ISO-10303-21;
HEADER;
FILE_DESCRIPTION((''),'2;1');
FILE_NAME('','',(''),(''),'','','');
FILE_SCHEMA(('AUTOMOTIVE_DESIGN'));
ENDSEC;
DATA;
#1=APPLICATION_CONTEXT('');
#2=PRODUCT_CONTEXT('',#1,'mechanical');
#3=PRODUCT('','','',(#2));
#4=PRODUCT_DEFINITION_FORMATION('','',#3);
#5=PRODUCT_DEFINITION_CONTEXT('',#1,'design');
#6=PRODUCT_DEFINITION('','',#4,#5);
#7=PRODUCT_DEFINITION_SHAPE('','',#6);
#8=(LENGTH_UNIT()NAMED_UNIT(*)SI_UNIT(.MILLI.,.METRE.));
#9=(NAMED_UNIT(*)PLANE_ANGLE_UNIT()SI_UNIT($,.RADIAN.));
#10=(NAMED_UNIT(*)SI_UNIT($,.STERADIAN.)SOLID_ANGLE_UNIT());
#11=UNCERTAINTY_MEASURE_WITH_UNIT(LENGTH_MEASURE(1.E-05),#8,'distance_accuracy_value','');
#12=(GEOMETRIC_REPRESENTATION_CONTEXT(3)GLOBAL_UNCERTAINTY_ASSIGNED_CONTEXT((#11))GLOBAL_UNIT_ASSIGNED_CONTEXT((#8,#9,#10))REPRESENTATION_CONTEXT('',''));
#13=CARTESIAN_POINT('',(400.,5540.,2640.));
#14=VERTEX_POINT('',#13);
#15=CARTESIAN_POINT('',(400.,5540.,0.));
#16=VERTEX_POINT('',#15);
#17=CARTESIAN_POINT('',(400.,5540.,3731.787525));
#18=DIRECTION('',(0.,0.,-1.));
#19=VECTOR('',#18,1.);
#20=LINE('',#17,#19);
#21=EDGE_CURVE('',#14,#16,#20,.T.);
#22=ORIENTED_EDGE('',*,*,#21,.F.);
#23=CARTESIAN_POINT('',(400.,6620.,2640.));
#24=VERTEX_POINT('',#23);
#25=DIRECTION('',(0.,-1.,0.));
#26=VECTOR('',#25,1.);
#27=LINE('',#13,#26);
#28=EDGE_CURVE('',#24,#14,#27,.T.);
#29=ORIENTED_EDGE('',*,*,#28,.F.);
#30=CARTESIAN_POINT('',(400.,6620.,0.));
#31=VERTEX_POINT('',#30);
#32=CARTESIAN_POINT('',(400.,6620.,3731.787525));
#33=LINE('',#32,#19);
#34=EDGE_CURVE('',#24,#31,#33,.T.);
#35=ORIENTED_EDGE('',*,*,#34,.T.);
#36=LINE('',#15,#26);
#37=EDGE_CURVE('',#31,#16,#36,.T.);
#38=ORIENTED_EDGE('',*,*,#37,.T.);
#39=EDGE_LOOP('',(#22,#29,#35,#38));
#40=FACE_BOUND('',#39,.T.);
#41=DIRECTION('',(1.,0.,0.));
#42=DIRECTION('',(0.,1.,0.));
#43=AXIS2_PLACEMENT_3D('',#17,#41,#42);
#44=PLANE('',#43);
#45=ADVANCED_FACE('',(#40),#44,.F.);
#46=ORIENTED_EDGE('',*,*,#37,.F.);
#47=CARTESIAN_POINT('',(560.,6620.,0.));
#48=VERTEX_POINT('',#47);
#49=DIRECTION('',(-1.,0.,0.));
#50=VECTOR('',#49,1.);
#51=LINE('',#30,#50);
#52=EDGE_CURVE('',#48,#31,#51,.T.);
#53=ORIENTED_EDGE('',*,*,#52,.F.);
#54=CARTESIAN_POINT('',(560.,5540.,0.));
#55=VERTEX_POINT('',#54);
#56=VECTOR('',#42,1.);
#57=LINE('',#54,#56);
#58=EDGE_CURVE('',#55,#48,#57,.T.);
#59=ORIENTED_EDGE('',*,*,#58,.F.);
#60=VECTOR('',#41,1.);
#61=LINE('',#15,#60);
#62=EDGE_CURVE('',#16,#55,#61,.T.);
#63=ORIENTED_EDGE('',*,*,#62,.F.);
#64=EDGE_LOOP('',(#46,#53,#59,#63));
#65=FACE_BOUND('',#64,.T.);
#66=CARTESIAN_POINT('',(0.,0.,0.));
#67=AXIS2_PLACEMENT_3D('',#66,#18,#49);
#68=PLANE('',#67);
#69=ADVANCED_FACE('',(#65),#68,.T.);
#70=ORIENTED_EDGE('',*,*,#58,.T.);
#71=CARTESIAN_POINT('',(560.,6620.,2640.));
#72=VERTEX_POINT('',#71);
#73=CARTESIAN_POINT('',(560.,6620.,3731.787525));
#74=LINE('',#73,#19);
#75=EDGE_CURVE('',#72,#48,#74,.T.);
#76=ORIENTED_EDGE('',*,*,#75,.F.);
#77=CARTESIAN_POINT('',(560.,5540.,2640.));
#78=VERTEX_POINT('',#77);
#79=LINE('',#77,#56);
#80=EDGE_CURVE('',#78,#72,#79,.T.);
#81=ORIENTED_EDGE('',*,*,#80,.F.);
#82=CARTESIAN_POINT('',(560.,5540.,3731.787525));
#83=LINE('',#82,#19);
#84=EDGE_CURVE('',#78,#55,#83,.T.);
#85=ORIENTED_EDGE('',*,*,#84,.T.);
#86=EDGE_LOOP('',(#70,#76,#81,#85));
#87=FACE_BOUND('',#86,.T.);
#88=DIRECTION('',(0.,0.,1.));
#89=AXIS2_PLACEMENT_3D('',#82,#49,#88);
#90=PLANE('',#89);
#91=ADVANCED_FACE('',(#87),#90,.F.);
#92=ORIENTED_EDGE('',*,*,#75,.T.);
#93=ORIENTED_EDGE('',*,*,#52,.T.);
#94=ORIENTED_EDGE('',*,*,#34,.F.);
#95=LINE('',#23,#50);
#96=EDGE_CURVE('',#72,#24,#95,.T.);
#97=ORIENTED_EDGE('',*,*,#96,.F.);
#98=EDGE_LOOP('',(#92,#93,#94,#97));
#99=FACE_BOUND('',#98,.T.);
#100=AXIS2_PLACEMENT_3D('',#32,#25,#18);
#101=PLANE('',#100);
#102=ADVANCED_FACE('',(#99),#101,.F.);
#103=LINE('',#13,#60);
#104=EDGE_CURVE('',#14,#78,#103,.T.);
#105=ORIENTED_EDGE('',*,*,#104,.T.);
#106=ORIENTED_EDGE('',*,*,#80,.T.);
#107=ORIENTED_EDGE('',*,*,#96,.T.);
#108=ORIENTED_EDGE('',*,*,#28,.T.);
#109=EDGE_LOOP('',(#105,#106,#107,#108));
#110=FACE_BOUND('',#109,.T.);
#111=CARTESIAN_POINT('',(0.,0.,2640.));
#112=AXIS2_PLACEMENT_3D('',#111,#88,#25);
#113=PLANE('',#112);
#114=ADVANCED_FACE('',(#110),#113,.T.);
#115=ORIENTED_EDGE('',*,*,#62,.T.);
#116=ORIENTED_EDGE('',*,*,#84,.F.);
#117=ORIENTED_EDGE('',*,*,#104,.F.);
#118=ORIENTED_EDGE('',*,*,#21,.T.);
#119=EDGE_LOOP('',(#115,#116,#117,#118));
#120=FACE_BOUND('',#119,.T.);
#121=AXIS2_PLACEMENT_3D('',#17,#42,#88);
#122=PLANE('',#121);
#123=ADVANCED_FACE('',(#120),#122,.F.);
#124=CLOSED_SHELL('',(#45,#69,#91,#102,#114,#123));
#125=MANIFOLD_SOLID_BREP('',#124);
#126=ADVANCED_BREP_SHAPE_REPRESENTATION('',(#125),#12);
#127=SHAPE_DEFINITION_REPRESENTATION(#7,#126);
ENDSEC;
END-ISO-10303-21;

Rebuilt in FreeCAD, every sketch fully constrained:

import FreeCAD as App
import Part
import Sketcher
from FreeCAD import Vector

doc = App.newDocument("Part")
body = doc.addObject("PartDesign::Body", "Body")

sketch1 = doc.addObject("Sketcher::SketchObject", "Sketch")
body.addObject(sketch1)
sketch1.AttachmentSupport = (doc.XY_Plane, [""])
sketch1.MapMode = "FlatFace"
sketch1.addGeometry([
    Part.LineSegment(Vector(400, 6620, 0), Vector(400, 5540, 0)),
    Part.LineSegment(Vector(400, 5540, 0), Vector(560, 5540, 0)),
    Part.LineSegment(Vector(560, 5540, 0), Vector(560, 6620, 0)),
    Part.LineSegment(Vector(560, 6620, 0), Vector(400, 6620, 0)),
], False)
sketch1.addConstraint([
    Sketcher.Constraint("Coincident", 0, 2, 1, 1),
    Sketcher.Constraint("Coincident", 1, 2, 2, 1),
    Sketcher.Constraint("Coincident", 2, 2, 3, 1),
    Sketcher.Constraint("Coincident", 3, 2, 0, 1),
    Sketcher.Constraint("Vertical", 0),
    Sketcher.Constraint("Horizontal", 1),
    Sketcher.Constraint("Vertical", 2),
    Sketcher.Constraint("Horizontal", 3),
    Sketcher.Constraint("DistanceX", 1, 1, 1, 2, 160.0),
    Sketcher.Constraint("DistanceY", 0, 2, 0, 1, 1080.0),
    Sketcher.Constraint("DistanceX", -1, 1, 0, 2, 400.0),
    Sketcher.Constraint("DistanceY", -1, 1, 0, 2, 5540.0),
])
pad1 = doc.addObject("PartDesign::Pad", "Pad")
body.addObject(pad1)
pad1.Profile = sketch1
pad1.Length = 2640

doc.recompute()
